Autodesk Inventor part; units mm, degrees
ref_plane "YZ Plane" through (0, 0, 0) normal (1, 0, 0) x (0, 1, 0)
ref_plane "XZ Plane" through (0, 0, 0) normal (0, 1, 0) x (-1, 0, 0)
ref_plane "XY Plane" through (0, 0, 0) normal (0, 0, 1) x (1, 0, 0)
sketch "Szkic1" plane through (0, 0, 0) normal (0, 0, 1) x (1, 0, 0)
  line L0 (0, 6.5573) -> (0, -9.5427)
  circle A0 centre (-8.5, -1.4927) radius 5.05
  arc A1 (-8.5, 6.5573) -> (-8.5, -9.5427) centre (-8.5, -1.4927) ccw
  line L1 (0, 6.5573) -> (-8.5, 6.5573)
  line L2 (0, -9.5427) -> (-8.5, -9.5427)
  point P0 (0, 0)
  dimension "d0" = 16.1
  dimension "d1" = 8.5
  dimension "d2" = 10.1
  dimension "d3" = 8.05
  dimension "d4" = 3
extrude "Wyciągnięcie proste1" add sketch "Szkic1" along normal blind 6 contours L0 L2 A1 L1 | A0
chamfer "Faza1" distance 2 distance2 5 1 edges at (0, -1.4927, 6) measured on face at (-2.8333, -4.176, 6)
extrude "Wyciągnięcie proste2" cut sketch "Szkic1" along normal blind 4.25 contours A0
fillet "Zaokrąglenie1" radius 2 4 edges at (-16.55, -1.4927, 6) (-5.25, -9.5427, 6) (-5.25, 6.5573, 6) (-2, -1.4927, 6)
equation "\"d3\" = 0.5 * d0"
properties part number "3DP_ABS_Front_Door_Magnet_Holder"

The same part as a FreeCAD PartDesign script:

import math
import FreeCAD as App
import Part
import Sketcher
from FreeCAD import Vector
Q = App.Units.Quantity


def edges_at(feature, points):
    """Names of the edges that pass closest to the given points."""
    edges = feature.Shape.Edges
    near = lambda p: min(range(len(edges)), key=lambda i: edges[i].distToShape(Part.Vertex(*p))[0])
    return sorted({f"Edge{near(p) + 1}" for p in points})

doc = App.newDocument("Part")
body = doc.addObject("PartDesign::Body", "Body")

# Sketch on XY plane
sketch1 = body.newObject("Sketcher::SketchObject", "Sketch")
sketch1.AttachmentSupport = (doc.getObject("XY_Plane"), [""])
sketch1.MapMode = "FlatFace"
sketch1.addGeometry([
    Part.LineSegment(Vector(0, -10, 0), Vector(0, 7, 0)),
    Part.LineSegment(Vector(0, 7, 0), Vector(-8, 7, 0)),
    Part.ArcOfCircle(Part.Circle(Vector(-8, -1, 0), Vector(0, 0, 1), 8), math.radians(90), math.radians(270)),
    Part.LineSegment(Vector(-8, -10, 0), Vector(0, -10, 0)),
], False)
sketch1.addConstraint([
    Sketcher.Constraint("Coincident", 0, 2, 1, 1),
    Sketcher.Constraint("Tangent", 1, 2, 2, 1),
    Sketcher.Constraint("Tangent", 2, 2, 3, 1),
    Sketcher.Constraint("Coincident", 3, 2, 0, 1),
    Sketcher.Constraint("Vertical", 0),
    Sketcher.Constraint("Horizontal", 1),
    Sketcher.Constraint("Horizontal", 3),
    Sketcher.Constraint("PointOnObject", 0, 2, -2),
    Sketcher.Constraint("Radius", 2, Q("8.05 mm")),
    Sketcher.Constraint("DistanceX", 1, 2, 1, 1, Q("8.5 mm")),
    Sketcher.Constraint("DistanceY", 2, 3, -1, 1, Q("1.4927 mm")),
])
pad1 = body.newObject("PartDesign::Pad", "Pad")
pad1.Profile = sketch1
pad1.Length = 6
doc.recompute()

chamfer = body.newObject("PartDesign::Chamfer", "Chamfer")
chamfer.Base = (pad1, edges_at(pad1, [(0, -1.493, 6)]))
chamfer.ChamferType = "Two distances"
chamfer.Size = 2
chamfer.Size2 = 5
chamfer.FlipDirection = True

# Sketch on XY plane
sketch2 = body.newObject("Sketcher::SketchObject", "Sketch001")
sketch2.AttachmentSupport = (doc.getObject("XY_Plane"), [""])
sketch2.MapMode = "FlatFace"
sketch2.addGeometry(Part.Circle(Vector(-8, -1, 0), Vector(0, 0, 1), 5), False)
sketch2.addConstraint([
    Sketcher.Constraint("Diameter", 0, Q("10.1 mm")),
    Sketcher.Constraint("DistanceX", 0, 3, -1, 1, Q("8.5 mm")),
    Sketcher.Constraint("DistanceY", 0, 3, -1, 1, Q("1.4927 mm")),
])
pocket1 = body.newObject("PartDesign::Pocket", "Pocket")
pocket1.Profile = sketch2
pocket1.Length = 4.25
pocket1.Reversed = True
doc.recompute()

fillet = body.newObject("PartDesign::Fillet", "Fillet")
fillet.Base = (pocket1, edges_at(pocket1, [
    (-16.55, -1.493, 6),
    (-5.25, -9.543, 6),
    (-5.25, 6.557, 6),
    (-2, -1.493, 6),
]))
fillet.Radius = 2

doc.recompute()
